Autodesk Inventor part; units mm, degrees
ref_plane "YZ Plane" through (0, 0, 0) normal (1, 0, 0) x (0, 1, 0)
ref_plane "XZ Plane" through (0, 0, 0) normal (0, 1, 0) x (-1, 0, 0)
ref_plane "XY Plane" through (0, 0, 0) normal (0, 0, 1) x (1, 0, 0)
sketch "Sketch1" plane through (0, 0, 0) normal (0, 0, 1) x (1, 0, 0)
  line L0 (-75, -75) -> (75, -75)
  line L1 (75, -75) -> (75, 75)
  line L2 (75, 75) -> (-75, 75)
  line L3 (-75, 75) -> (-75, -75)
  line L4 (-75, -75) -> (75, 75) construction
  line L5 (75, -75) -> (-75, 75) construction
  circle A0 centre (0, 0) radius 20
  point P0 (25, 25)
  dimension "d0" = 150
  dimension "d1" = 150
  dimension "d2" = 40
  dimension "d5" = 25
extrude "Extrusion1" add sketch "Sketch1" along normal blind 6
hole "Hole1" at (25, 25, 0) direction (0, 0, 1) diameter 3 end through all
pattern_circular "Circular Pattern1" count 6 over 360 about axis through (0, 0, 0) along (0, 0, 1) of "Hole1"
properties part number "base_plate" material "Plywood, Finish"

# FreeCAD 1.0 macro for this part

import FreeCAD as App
import Part
import Sketcher
Q = App.Units.Quantity

doc = App.newDocument("Part")
params = doc.addObject("Spreadsheet::Sheet", "Params")
for row, (alias, value) in enumerate([
    ("sketch1_diameter", "40 mm"),
    ("sketch1_width", "150 mm"),
    ("pad1_length", "6 mm"),
    ("sketch2_diameter", "3 mm"),
    ("hole_diameter", "3 mm"),
], start=1):
    params.set(f"A{row}", alias)
    params.set(f"B{row}", "=" + value)
    params.setAlias(f"B{row}", alias)

body = doc.addObject("PartDesign::Body", "Body")

sketch1 = body.newObject("Sketcher::SketchObject", "Sketch")
sketch1.AttachmentSupport = (doc.getObject("XY_Plane"), [""])
sketch1.MapMode = "FlatFace"
sketch1.addGeometry(Part.LineSegment(App.Vector(-75, 75, 0), App.Vector(-75, -75, 0)), False)
sketch1.addGeometry(Part.LineSegment(App.Vector(-75, -75, 0), App.Vector(75, -75, 0)), False)
sketch1.addGeometry(Part.LineSegment(App.Vector(75, -75, 0), App.Vector(75, 75, 0)), False)
sketch1.addGeometry(Part.LineSegment(App.Vector(75, 75, 0), App.Vector(-75, 75, 0)), False)
sketch1.addGeometry(Part.Circle(App.Vector(0, 0, 0), App.Vector(0, 0, 1), 20), False)
sketch1.addConstraint(Sketcher.Constraint("Coincident", 0, 2, 1, 1))
sketch1.addConstraint(Sketcher.Constraint("Coincident", 1, 2, 2, 1))
sketch1.addConstraint(Sketcher.Constraint("Coincident", 2, 2, 3, 1))
sketch1.addConstraint(Sketcher.Constraint("Coincident", 3, 2, 0, 1))
sketch1.addConstraint(Sketcher.Constraint("Vertical", 0))
sketch1.addConstraint(Sketcher.Constraint("Horizontal", 1))
sketch1.addConstraint(Sketcher.Constraint("Vertical", 2))
sketch1.addConstraint(Sketcher.Constraint("Horizontal", 3))
sketch1.addConstraint(Sketcher.Constraint("Coincident", 4, 3, -1, 1))
sketch1.addConstraint(Sketcher.Constraint("Symmetric", 0, 2, 2, 2, -1, 1))
sketch1.addConstraint(Sketcher.Constraint("Equal", 3, 0))
sketch1.addConstraint(Sketcher.Constraint("Diameter", 4, Q("40 mm")))
sketch1.addConstraint(Sketcher.Constraint("DistanceX", 1, 1, 1, 2, Q("150 mm")))
sketch1.setExpression("Constraints[11]", "Params.sketch1_diameter")
sketch1.setExpression("Constraints[12]", "Params.sketch1_width")
pad1 = body.newObject("PartDesign::Pad", "Pad")
pad1.Profile = sketch1
pad1.setExpression("Length", "Params.pad1_length")

sketch2 = body.newObject("Sketcher::SketchObject", "Sketch001")
sketch2.AttachmentSupport = (doc.getObject("XY_Plane"), [""])
sketch2.MapMode = "FlatFace"
sketch2.addGeometry(Part.Circle(App.Vector(25, 25, 0), App.Vector(0, 0, 1), 1.5), False)
sketch2.addConstraint(Sketcher.Constraint("Diameter", 0, Q("3 mm")))
sketch2.addConstraint(Sketcher.Constraint("DistanceX", -1, 1, 0, 3, Q("25 mm")))
sketch2.addConstraint(Sketcher.Constraint("DistanceY", -1, 1, 0, 3, Q("25 mm")))
sketch2.setExpression("Constraints[0]", "Params.sketch2_diameter")
doc.recompute()
hole = body.newObject("PartDesign::Hole", "Hole")
hole.Profile = sketch2
hole.ThreadType = "None"
hole.setExpression("Diameter", "Params.hole_diameter")
hole.DepthType = "ThroughAll"
hole.Reversed = True
doc.recompute()

polarpattern = body.newObject("PartDesign::PolarPattern", "PolarPattern")
polarpattern.Originals = [hole]
polarpattern.Axis = (doc.getObject("Z_Axis"), [""])
polarpattern.Angle = 360
polarpattern.Occurrences = 6
body.Tip = polarpattern

doc.recompute()
